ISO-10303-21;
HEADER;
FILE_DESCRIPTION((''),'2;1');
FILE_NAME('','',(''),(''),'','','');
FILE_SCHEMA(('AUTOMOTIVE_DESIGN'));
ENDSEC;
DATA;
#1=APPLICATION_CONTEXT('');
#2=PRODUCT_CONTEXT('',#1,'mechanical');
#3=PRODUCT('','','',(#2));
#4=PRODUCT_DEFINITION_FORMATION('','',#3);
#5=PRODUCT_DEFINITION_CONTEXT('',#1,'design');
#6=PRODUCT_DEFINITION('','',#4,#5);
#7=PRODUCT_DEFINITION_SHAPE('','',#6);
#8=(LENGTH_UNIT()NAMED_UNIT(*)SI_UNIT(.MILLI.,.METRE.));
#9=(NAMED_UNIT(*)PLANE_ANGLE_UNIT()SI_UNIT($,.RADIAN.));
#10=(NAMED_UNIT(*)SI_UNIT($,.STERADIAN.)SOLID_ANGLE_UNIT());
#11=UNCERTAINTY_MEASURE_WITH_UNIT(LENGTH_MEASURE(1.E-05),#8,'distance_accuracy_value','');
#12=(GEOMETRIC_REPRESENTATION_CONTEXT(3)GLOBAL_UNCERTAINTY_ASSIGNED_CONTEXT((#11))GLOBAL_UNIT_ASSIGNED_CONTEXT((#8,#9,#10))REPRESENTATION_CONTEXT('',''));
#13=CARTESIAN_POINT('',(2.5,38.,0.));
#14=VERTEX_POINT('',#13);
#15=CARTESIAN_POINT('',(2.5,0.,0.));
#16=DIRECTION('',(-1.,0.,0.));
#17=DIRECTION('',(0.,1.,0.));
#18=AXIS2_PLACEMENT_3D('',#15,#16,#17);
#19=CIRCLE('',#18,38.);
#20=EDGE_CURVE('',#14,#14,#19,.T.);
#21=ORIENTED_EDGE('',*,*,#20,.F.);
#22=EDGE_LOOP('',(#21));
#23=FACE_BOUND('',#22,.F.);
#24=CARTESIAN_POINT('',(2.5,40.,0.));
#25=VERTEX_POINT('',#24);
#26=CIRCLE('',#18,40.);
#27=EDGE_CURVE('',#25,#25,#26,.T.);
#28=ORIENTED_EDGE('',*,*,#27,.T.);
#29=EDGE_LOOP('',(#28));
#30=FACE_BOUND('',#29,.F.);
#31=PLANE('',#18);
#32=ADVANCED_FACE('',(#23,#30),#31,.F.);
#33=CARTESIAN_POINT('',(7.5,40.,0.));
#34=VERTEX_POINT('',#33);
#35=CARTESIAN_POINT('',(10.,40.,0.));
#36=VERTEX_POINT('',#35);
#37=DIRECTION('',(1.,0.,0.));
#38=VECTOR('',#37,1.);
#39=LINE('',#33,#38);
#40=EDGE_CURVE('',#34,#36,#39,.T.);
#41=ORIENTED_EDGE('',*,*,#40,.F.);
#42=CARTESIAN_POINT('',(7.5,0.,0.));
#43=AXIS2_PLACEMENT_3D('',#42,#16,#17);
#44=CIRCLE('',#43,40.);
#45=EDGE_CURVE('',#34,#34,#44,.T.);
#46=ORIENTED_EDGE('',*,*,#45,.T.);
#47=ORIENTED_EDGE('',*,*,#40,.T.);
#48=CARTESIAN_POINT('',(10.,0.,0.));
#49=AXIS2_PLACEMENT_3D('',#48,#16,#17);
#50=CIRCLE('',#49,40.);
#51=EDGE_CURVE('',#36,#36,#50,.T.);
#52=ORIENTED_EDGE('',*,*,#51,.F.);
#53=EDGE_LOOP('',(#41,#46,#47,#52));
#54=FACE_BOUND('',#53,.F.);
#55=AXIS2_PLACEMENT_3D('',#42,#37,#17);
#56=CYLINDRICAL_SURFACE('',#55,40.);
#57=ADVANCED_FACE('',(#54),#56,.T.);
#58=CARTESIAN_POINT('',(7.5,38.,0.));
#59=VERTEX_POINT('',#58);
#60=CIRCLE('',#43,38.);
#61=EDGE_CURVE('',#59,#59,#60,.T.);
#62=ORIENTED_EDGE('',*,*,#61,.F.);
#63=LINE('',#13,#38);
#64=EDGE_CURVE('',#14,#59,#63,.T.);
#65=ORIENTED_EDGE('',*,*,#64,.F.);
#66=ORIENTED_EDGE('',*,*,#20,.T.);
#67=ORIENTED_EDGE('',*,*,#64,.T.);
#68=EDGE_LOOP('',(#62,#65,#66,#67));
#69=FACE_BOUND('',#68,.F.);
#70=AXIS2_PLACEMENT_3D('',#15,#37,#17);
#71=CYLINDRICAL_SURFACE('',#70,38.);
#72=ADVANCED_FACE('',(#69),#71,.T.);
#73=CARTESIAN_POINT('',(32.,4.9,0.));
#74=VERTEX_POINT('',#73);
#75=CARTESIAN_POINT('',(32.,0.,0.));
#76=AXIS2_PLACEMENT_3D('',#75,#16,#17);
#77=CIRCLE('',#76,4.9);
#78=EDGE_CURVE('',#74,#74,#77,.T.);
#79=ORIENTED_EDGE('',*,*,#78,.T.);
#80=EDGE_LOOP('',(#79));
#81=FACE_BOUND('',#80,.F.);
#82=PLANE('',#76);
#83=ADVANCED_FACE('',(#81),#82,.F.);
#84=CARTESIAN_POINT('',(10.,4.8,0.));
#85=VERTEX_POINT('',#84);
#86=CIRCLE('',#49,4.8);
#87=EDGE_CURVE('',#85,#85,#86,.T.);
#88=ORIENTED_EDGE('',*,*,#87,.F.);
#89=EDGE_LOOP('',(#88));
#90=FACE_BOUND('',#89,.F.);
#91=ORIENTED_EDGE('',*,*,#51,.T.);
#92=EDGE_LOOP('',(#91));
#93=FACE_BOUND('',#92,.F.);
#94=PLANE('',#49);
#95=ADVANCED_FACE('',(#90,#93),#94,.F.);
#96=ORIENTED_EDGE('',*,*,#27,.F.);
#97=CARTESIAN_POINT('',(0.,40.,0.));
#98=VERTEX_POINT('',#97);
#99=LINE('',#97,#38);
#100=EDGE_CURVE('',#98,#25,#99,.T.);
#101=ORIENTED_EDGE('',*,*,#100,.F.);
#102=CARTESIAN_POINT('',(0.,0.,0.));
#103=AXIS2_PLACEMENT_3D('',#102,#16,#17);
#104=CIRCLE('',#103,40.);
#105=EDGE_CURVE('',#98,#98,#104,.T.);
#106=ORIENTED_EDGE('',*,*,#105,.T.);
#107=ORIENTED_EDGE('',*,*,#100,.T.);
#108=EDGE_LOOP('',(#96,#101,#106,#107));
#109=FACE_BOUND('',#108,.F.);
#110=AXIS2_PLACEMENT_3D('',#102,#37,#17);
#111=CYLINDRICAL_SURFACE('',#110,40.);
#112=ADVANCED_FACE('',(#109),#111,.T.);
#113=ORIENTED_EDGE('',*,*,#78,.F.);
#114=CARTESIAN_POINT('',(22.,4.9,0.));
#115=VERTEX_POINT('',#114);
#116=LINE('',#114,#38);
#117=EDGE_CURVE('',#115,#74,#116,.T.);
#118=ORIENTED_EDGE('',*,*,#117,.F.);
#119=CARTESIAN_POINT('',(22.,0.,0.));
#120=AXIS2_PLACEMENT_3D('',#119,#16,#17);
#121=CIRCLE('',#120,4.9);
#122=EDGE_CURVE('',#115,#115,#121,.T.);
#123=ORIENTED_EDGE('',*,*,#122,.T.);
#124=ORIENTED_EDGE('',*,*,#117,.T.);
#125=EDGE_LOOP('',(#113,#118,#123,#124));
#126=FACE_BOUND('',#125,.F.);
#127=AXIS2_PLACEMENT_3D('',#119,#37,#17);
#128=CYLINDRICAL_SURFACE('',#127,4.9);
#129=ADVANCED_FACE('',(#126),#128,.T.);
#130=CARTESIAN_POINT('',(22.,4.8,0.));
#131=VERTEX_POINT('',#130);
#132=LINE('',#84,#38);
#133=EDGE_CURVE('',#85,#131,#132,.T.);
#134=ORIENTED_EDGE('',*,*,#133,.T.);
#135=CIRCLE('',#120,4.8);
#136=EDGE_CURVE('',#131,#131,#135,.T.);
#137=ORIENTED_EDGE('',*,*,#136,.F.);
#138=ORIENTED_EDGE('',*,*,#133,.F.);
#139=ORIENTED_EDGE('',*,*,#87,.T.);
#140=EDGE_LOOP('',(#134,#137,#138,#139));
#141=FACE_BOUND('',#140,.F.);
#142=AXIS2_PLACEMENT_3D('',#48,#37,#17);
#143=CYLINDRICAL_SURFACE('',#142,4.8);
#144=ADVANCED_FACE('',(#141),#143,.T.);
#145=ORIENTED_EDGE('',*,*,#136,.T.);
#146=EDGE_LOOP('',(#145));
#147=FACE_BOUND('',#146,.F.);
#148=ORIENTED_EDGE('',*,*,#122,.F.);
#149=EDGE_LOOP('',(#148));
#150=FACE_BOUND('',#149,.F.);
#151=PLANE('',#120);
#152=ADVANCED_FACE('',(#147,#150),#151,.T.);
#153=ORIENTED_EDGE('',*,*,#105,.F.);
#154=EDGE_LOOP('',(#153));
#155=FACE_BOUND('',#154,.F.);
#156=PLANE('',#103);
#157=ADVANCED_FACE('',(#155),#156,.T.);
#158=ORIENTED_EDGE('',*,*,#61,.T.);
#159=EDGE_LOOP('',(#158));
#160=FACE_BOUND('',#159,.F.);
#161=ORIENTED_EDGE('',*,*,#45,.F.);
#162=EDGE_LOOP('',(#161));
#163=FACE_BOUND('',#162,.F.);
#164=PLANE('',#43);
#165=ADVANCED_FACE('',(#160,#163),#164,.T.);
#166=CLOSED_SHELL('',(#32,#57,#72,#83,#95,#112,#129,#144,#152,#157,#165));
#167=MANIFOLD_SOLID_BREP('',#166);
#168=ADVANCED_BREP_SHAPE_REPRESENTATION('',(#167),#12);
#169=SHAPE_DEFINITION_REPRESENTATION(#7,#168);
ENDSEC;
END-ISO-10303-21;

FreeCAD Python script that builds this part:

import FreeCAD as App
import Part
import Sketcher
from FreeCAD import Vector
Q = App.Units.Quantity

doc = App.newDocument("Part")
params = doc.addObject("Spreadsheet::Sheet", "Params")
for row, (alias, value) in enumerate([
    ("sketch1_width", "10 mm"),
    ("sketch1_width2", "12 mm"),
    ("sketch1_width3", "5 mm"),
    ("sketch1_height", "40 mm"),
    ("sketch1_height2", "2 mm"),
    ("revolution_angle", "360 deg"),
], start=1):
    params.set(f"A{row}", alias)
    params.set(f"B{row}", "=" + value)
    params.setAlias(f"B{row}", alias)

body = doc.addObject("PartDesign::Body", "Body")

# Sketch on XY plane
sketch1 = body.newObject("Sketcher::SketchObject", "Sketch")
sketch1.AttachmentSupport = (doc.getObject("XY_Plane"), [""])
sketch1.MapMode = "FlatFace"
sketch1.addGeometry(Part.LineSegment(Vector(0, 40, 0), Vector(0, 0, 0)), False)
sketch1.addGeometry(Part.LineSegment(Vector(0, 0, 0), Vector(32, 0, 0)), False)
sketch1.addGeometry(Part.LineSegment(Vector(32, 0, 0), Vector(32, 4.9, 0)), False)
sketch1.addGeometry(Part.LineSegment(Vector(32, 4.9, 0), Vector(22, 4.9, 0)), False)
sketch1.addGeometry(Part.LineSegment(Vector(22, 4.9, 0), Vector(22, 4.8, 0)), False)
sketch1.addGeometry(Part.LineSegment(Vector(22, 4.8, 0), Vector(10, 4.8, 0)), False)
sketch1.addGeometry(Part.LineSegment(Vector(10, 4.8, 0), Vector(10, 40, 0)), False)
sketch1.addGeometry(Part.LineSegment(Vector(10, 40, 0), Vector(7.5, 40, 0)), False)
sketch1.addGeometry(Part.LineSegment(Vector(7.5, 40, 0), Vector(7.5, 38, 0)), False)
sketch1.addGeometry(Part.LineSegment(Vector(7.5, 38, 0), Vector(2.5, 38, 0)), False)
sketch1.addGeometry(Part.LineSegment(Vector(2.5, 38, 0), Vector(2.5, 40, 0)), False)
sketch1.addGeometry(Part.LineSegment(Vector(2.5, 40, 0), Vector(0, 40, 0)), False)
sketch1.addConstraint(Sketcher.Constraint("Coincident", 0, 2, 1, 1))
sketch1.addConstraint(Sketcher.Constraint("Coincident", 1, 2, 2, 1))
sketch1.addConstraint(Sketcher.Constraint("Coincident", 2, 2, 3, 1))
sketch1.addConstraint(Sketcher.Constraint("Coincident", 3, 2, 4, 1))
sketch1.addConstraint(Sketcher.Constraint("Coincident", 4, 2, 5, 1))
sketch1.addConstraint(Sketcher.Constraint("Coincident", 5, 2, 6, 1))
sketch1.addConstraint(Sketcher.Constraint("Coincident", 6, 2, 7, 1))
sketch1.addConstraint(Sketcher.Constraint("Coincident", 7, 2, 8, 1))
sketch1.addConstraint(Sketcher.Constraint("Coincident", 8, 2, 9, 1))
sketch1.addConstraint(Sketcher.Constraint("Coincident", 9, 2, 10, 1))
sketch1.addConstraint(Sketcher.Constraint("Coincident", 10, 2, 11, 1))
sketch1.addConstraint(Sketcher.Constraint("Coincident", 11, 2, 0, 1))
sketch1.addConstraint(Sketcher.Constraint("Vertical", 0))
sketch1.addConstraint(Sketcher.Constraint("Horizontal", 1))
sketch1.addConstraint(Sketcher.Constraint("Vertical", 2))
sketch1.addConstraint(Sketcher.Constraint("Horizontal", 3))
sketch1.addConstraint(Sketcher.Constraint("Vertical", 4))
sketch1.addConstraint(Sketcher.Constraint("Horizontal", 5))
sketch1.addConstraint(Sketcher.Constraint("Vertical", 6))
sketch1.addConstraint(Sketcher.Constraint("Horizontal", 7))
sketch1.addConstraint(Sketcher.Constraint("Vertical", 8))
sketch1.addConstraint(Sketcher.Constraint("Horizontal", 9))
sketch1.addConstraint(Sketcher.Constraint("Vertical", 10))
sketch1.addConstraint(Sketcher.Constraint("Horizontal", 11))
sketch1.addConstraint(Sketcher.Constraint("Coincident", 0, 2, -1, 1))
sketch1.addConstraint(Sketcher.Constraint("Horizontal", 7, 2, 10, 2))
sketch1.addConstraint(Sketcher.Constraint("Equal", 7, 11))
sketch1.addConstraint(Sketcher.Constraint("DistanceX", 3, 2, 3, 1, Q("10 mm")))
sketch1.addConstraint(Sketcher.Constraint("DistanceX", 5, 2, 5, 1, Q("12 mm")))
sketch1.addConstraint(Sketcher.Constraint("DistanceX", 9, 2, 9, 1, Q("5 mm")))
sketch1.addConstraint(Sketcher.Constraint("DistanceY", 0, 2, 0, 1, Q("40 mm")))
sketch1.addConstraint(Sketcher.Constraint("DistanceY", 8, 2, 8, 1, Q("2 mm")))
sketch1.addConstraint(Sketcher.Constraint("DistanceX", 7, 2, 7, 1, Q("2.5 mm")))
sketch1.addConstraint(Sketcher.Constraint("DistanceY", 4, 2, 4, 1, Q("0.1 mm")))
sketch1.addConstraint(Sketcher.Constraint("DistanceY", 2, 1, 2, 2, Q("4.9 mm")))
sketch1.setExpression("Constraints[27]", "Params.sketch1_width")
sketch1.setExpression("Constraints[28]", "Params.sketch1_width2")
sketch1.setExpression("Constraints[29]", "Params.sketch1_width3")
sketch1.setExpression("Constraints[30]", "Params.sketch1_height")
sketch1.setExpression("Constraints[31]", "Params.sketch1_height2")
revolution = body.newObject("PartDesign::Revolution", "Revolution")
revolution.Profile = sketch1
revolution.ReferenceAxis = (sketch1, ["H_Axis"])
revolution.setExpression("Angle", "Params.revolution_angle")

doc.recompute()
